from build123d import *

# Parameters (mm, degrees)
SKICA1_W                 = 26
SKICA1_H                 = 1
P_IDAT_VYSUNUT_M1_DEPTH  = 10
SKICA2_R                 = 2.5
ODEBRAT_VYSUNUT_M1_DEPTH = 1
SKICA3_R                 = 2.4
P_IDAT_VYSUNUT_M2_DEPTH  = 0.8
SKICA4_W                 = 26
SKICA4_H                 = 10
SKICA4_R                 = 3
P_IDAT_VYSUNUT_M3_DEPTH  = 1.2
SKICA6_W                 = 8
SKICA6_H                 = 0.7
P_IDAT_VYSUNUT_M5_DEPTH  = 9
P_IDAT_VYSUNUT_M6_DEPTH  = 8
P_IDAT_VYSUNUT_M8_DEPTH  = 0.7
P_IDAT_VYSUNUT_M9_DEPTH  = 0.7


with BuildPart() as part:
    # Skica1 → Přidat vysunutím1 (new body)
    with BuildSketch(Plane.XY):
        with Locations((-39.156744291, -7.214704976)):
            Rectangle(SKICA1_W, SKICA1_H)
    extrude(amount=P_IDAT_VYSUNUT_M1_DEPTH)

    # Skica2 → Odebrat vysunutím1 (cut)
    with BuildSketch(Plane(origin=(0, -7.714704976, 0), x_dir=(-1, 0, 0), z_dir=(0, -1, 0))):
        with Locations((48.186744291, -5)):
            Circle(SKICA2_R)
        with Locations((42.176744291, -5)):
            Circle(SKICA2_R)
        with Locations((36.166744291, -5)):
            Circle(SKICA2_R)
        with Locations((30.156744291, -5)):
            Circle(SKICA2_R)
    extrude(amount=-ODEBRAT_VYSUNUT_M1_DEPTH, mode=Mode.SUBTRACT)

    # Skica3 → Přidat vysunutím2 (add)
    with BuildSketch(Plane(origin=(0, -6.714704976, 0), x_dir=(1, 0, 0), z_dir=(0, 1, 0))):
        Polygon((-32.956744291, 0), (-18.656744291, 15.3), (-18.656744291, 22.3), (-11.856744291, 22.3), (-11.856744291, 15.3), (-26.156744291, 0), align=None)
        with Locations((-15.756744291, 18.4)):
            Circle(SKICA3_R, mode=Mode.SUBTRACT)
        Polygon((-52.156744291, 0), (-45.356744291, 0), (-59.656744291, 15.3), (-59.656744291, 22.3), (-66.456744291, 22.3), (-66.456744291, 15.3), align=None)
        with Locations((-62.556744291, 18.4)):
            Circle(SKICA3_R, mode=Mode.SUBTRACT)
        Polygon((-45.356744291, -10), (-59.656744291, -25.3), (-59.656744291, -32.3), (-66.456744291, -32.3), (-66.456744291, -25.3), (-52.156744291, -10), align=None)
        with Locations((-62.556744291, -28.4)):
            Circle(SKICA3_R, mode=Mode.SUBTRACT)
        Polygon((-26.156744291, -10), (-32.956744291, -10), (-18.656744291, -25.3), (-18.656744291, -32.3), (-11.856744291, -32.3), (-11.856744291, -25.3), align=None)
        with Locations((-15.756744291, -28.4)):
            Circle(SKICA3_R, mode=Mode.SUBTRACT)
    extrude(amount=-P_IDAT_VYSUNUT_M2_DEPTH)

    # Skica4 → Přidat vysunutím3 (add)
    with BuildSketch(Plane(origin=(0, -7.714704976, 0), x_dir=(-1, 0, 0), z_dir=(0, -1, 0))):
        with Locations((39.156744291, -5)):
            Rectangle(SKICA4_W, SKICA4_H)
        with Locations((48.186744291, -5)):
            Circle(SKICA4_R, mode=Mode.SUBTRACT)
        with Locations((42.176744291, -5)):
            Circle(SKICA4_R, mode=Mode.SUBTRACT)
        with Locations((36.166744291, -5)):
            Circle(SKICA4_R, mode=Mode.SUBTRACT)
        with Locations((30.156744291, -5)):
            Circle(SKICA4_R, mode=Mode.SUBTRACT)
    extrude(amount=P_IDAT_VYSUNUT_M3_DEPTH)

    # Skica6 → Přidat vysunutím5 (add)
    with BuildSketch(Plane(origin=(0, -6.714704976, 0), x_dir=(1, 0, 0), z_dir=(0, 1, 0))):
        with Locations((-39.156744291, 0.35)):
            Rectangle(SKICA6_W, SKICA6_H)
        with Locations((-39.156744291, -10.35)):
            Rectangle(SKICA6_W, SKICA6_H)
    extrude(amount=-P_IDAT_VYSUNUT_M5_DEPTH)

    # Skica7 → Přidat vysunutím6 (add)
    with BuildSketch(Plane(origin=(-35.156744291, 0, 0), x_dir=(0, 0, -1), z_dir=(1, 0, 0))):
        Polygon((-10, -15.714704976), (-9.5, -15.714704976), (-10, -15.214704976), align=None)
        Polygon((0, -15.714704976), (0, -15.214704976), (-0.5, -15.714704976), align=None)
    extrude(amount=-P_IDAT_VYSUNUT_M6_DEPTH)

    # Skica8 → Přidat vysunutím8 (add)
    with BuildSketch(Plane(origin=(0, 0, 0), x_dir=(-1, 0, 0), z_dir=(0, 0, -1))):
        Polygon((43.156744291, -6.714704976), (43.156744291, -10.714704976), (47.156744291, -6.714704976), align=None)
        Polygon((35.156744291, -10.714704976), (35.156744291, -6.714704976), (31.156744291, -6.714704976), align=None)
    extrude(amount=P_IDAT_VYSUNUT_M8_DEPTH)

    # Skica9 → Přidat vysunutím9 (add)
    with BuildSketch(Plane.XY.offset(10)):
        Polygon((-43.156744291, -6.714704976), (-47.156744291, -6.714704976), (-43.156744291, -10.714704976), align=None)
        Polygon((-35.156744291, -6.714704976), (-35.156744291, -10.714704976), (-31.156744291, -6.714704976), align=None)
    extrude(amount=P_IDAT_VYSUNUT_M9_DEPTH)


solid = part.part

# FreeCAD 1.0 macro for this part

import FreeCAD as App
import Part
import Sketcher
Q = App.Units.Quantity

doc = App.newDocument("Part")
body = doc.addObject("PartDesign::Body", "Body")

# Sketch on XY plane
sketch1 = doc.addObject("Sketcher::SketchObject", "Sketch")
body.addObject(sketch1)
sketch1.AttachmentSupport = (doc.XY_Plane, [""])
sketch1.MapMode = "FlatFace"
sketch1.addGeometry([
    Part.LineSegment(App.Vector(-52.2, -6.7, 0), App.Vector(-52.2, -7.7, 0)),
    Part.LineSegment(App.Vector(-52.2, -7.7, 0), App.Vector(-26.2, -7.7, 0)),
    Part.LineSegment(App.Vector(-26.2, -7.7, 0), App.Vector(-26.2, -6.7, 0)),
    Part.LineSegment(App.Vector(-26.2, -6.7, 0), App.Vector(-52.2, -6.7, 0)),
], False)
sketch1.addConstraint([
    Sketcher.Constraint("Coincident", 0, 2, 1, 1),
    Sketcher.Constraint("Coincident", 1, 2, 2, 1),
    Sketcher.Constraint("Coincident", 2, 2, 3, 1),
    Sketcher.Constraint("Coincident", 3, 2, 0, 1),
    Sketcher.Constraint("Vertical", 0),
    Sketcher.Constraint("Horizontal", 1),
    Sketcher.Constraint("Vertical", 2),
    Sketcher.Constraint("Horizontal", 3),
    Sketcher.Constraint("DistanceX", 1, 1, 1, 2, Q("26 mm")),
    Sketcher.Constraint("DistanceY", 0, 2, 0, 1, Q("1 mm")),
    Sketcher.Constraint("DistanceX", 0, 2, -1, 1, Q("52.156744 mm")),
    Sketcher.Constraint("DistanceY", 0, 2, -1, 1, Q("7.714705 mm")),
])
pad1 = doc.addObject("PartDesign::Pad", "Pad")
body.addObject(pad1)
pad1.Profile = sketch1
pad1.Length = 10

# Sketch on XZ plane
sketch2 = doc.addObject("Sketcher::SketchObject", "Sketch001")
body.addObject(sketch2)
sketch2.AttachmentSupport = (doc.XZ_Plane, [""])
sketch2.MapMode = "FlatFace"
sketch2.AttachmentOffset = App.Placement(App.Vector(0, 0, 7.714705), App.Rotation())
sketch2.addGeometry([
    Part.Circle(App.Vector(-48.2, 5, 0), App.Vector(0, 0, 1), 2.5),
    Part.Circle(App.Vector(-42.2, 5, 0), App.Vector(0, 0, 1), 2.5),
    Part.Circle(App.Vector(-36.2, 5, 0), App.Vector(0, 0, 1), 2.5),
    Part.Circle(App.Vector(-30.2, 5, 0), App.Vector(0, 0, 1), 2.5),
], False)
sketch2.addConstraint([
    Sketcher.Constraint("Equal", 0, 1),
    Sketcher.Constraint("Equal", 1, 2),
    Sketcher.Constraint("Equal", 2, 3),
    Sketcher.Constraint("Horizontal", 0, 3, 1, 3),
    Sketcher.Constraint("Horizontal", 1, 3, 2, 3),
    Sketcher.Constraint("Horizontal", 2, 3, 3, 3),
    Sketcher.Constraint("Diameter", 0, Q("5 mm")),
    Sketcher.Constraint("DistanceY", -1, 1, 0, 3, Q("5 mm")),
    Sketcher.Constraint("DistanceX", 0, 3, 1, 3, Q("6.01 mm")),
    Sketcher.Constraint("DistanceX", 1, 3, 2, 3, Q("6.01 mm")),
    Sketcher.Constraint("DistanceX", 2, 3, 3, 3, Q("6.01 mm")),
    Sketcher.Constraint("DistanceX", 0, 3, -1, 1, Q("48.186744 mm")),
])
pocket1 = doc.addObject("PartDesign::Pocket", "Pocket")
body.addObject(pocket1)
pocket1.Profile = sketch2
pocket1.Length = 1

# Sketch on XZ plane
sketch3 = doc.addObject("Sketcher::SketchObject", "Sketch002")
body.addObject(sketch3)
sketch3.AttachmentSupport = (doc.XZ_Plane, [""])
sketch3.MapMode = "FlatFace"
sketch3.AttachmentOffset = App.Placement(App.Vector(0, 0, 6.714705), App.Rotation())
sketch3.addGeometry([
    Part.LineSegment(App.Vector(-18.7, -15.3, 0), App.Vector(-33, 0, 0)),  # 0
    Part.LineSegment(App.Vector(-33, 0, 0), App.Vector(-26.2, 0, 0)),  # 1
    Part.LineSegment(App.Vector(-26.2, 0, 0), App.Vector(-11.9, -15.3, 0)),  # 2
    Part.LineSegment(App.Vector(-11.9, -15.3, 0), App.Vector(-11.9, -22.3, 0)),  # 3
    Part.LineSegment(App.Vector(-11.9, -22.3, 0), App.Vector(-18.7, -22.3, 0)),  # 4
    Part.LineSegment(App.Vector(-18.7, -22.3, 0), App.Vector(-18.7, -15.3, 0)),  # 5
    Part.Circle(App.Vector(-15.8, -18.4, 0), App.Vector(0, 0, 1), 2.4),  # 6
    Part.LineSegment(App.Vector(-52.2, 0, 0), App.Vector(-45.4, 0, 0)),  # 7
    Part.LineSegment(App.Vector(-45.4, 0, 0), App.Vector(-59.7, -15.3, 0)),  # 8
    Part.LineSegment(App.Vector(-59.7, -15.3, 0), App.Vector(-59.7, -22.3, 0)),  # 9
    Part.LineSegment(App.Vector(-59.7, -22.3, 0), App.Vector(-66.5, -22.3, 0)),  # 10
    Part.LineSegment(App.Vector(-66.5, -22.3, 0), App.Vector(-66.5, -15.3, 0)),  # 11
    Part.LineSegment(App.Vector(-66.5, -15.3, 0), App.Vector(-52.2, 0, 0)),  # 12
    Part.Circle(App.Vector(-62.6, -18.4, 0), App.Vector(0, 0, 1), 2.4),  # 13
    Part.LineSegment(App.Vector(-59.7, 25.3, 0), App.Vector(-45.4, 10, 0)),  # 14
    Part.LineSegment(App.Vector(-45.4, 10, 0), App.Vector(-52.2, 10, 0)),  # 15
    Part.LineSegment(App.Vector(-52.2, 10, 0), App.Vector(-66.5, 25.3, 0)),  # 16
    Part.LineSegment(App.Vector(-66.5, 25.3, 0), App.Vector(-66.5, 32.3, 0)),  # 17
    Part.LineSegment(App.Vector(-66.5, 32.3, 0), App.Vector(-59.7, 32.3, 0)),  # 18
    Part.LineSegment(App.Vector(-59.7, 32.3, 0), App.Vector(-59.7, 25.3, 0)),  # 19
    Part.Circle(App.Vector(-62.6, 28.4, 0), App.Vector(0, 0, 1), 2.4),  # 20
    Part.LineSegment(App.Vector(-26.2, 10, 0), App.Vector(-33, 10, 0)),  # 21
    Part.LineSegment(App.Vector(-33, 10, 0), App.Vector(-18.7, 25.3, 0)),  # 22
    Part.LineSegment(App.Vector(-18.7, 25.3, 0), App.Vector(-18.7, 32.3, 0)),  # 23
    Part.LineSegment(App.Vector(-18.7, 32.3, 0), App.Vector(-11.9, 32.3, 0)),  # 24
    Part.LineSegment(App.Vector(-11.9, 32.3, 0), App.Vector(-11.9, 25.3, 0)),  # 25
    Part.LineSegment(App.Vector(-11.9, 25.3, 0), App.Vector(-26.2, 10, 0)),  # 26
    Part.Circle(App.Vector(-15.8, 28.4, 0), App.Vector(0, 0, 1), 2.4),  # 27
], False)
sketch3.addConstraint([
    Sketcher.Constraint("Coincident", 0, 2, 1, 1),
    Sketcher.Constraint("Coincident", 1, 2, 2, 1),
    Sketcher.Constraint("Coincident", 2, 2, 3, 1),
    Sketcher.Constraint("Coincident", 3, 2, 4, 1),
    Sketcher.Constraint("Coincident", 4, 2, 5, 1),
    Sketcher.Constraint("Coincident", 5, 2, 0, 1),
    Sketcher.Constraint("Coincident", 7, 2, 8, 1),
    Sketcher.Constraint("Coincident", 8, 2, 9, 1),
    Sketcher.Constraint("Coincident", 9, 2, 10, 1),
    Sketcher.Constraint("Coincident", 10, 2, 11, 1),
    Sketcher.Constraint("Coincident", 11, 2, 12, 1),
    Sketcher.Constraint("Coincident", 12, 2, 7, 1),
    Sketcher.Constraint("Coincident", 14, 2, 15, 1),
    Sketcher.Constraint("Coincident", 15, 2, 16, 1),
    Sketcher.Constraint("Coincident", 16, 2, 17, 1),
    Sketcher.Constraint("Coincident", 17, 2, 18, 1),
    Sketcher.Constraint("Coincident", 18, 2, 19, 1),
    Sketcher.Constraint("Coincident", 19, 2, 14, 1),
    Sketcher.Constraint("Coincident", 21, 2, 22, 1),
    Sketcher.Constraint("Coincident", 22, 2, 23, 1),
    Sketcher.Constraint("Coincident", 23, 2, 24, 1),
    Sketcher.Constraint("Coincident", 24, 2, 25, 1),
    Sketcher.Constraint("Coincident", 25, 2, 26, 1),
    Sketcher.Constraint("Coincident", 26, 2, 21, 1),
    Sketcher.Constraint("Horizontal", 1),
    Sketcher.Constraint("Vertical", 3),
    Sketcher.Constraint("Horizontal", 4),
    Sketcher.Constraint("Vertical", 5),
    Sketcher.Constraint("Horizontal", 7),
    Sketcher.Constraint("Vertical", 9),
    Sketcher.Constraint("Horizontal", 10),
    Sketcher.Constraint("Vertical", 11),
    Sketcher.Constraint("Horizontal", 15),
    Sketcher.Constraint("Vertical", 17),
    Sketcher.Constraint("Horizontal", 18),
    Sketcher.Constraint("Vertical", 19),
    Sketcher.Constraint("Horizontal", 21),
    Sketcher.Constraint("Vertical", 23),
    Sketcher.Constraint("Horizontal", 24),
    Sketcher.Constraint("Vertical", 25),
    Sketcher.Constraint("Equal", 6, 13),
    Sketcher.Constraint("Equal", 13, 20),
    Sketcher.Constraint("Equal", 20, 27),
    Sketcher.Constraint("PointOnObject", 0, 2, -1),
    Sketcher.Constraint("PointOnObject", 7, 2, -1),
    Sketcher.Constraint("Parallel", 0, 2),
    Sketcher.Constraint("Parallel", 8, 12),
    Sketcher.Constraint("Parallel", 2, 14),
    Sketcher.Constraint("Parallel", 14, 16),
    Sketcher.Constraint("Parallel", 12, 22),
    Sketcher.Constraint("Parallel", 22, 26),
    Sketcher.Constraint("Horizontal", 6, 3, 13, 3),
    Sketcher.Constraint("Horizontal", 20, 3, 27, 3),
    Sketcher.Constraint("Horizontal", 2, 2, 5, 2),
    Sketcher.Constraint("Horizontal", 5, 2, 8, 2),
    Sketcher.Constraint("Horizontal", 4, 2, 9, 2),
    Sketcher.Constraint("Horizontal", 8, 2, 11, 2),
    Sketcher.Constraint("Horizontal", 16, 2, 19, 2),
    Sketcher.Constraint("Horizontal", 15, 2, 21, 2),
    Sketcher.Constraint("Horizontal", 19, 2, 22, 2),
    Sketcher.Constraint("Horizontal", 18, 2, 23, 2),
    Sketcher.Constraint("Horizontal", 22, 2, 25, 2),
    Sketcher.Constraint("Vertical", 13, 3, 20, 3),
    Sketcher.Constraint("Vertical", 6, 3, 27, 3),
    Sketcher.Constraint("Vertical", 7, 2, 14, 2),
    Sketcher.Constraint("Vertical", 12, 2, 15, 2),
    Sketcher.Constraint("Vertical", 11, 2, 16, 2),
    Sketcher.Constraint("Vertical", 0, 2, 21, 2),
    Sketcher.Constraint("Vertical", 5, 2, 22, 2),
    Sketcher.Constraint("Vertical", 3, 2, 24, 2),
    Sketcher.Constraint("Equal", 4, 7),
    Sketcher.Constraint("Equal", 11, 17),
    Sketcher.Constraint("Diameter", 6, Q("4.8 mm")),
    Sketcher.Constraint("DistanceY", 3, 2, 3, 1, Q("7 mm")),
    Sketcher.Constraint("DistanceX", 1, 1, 1, 2, Q("6.8 mm")),
    Sketcher.Constraint("DistanceY", -1, 1, 14, 2, Q("10 mm")),
    Sketcher.Constraint("DistanceX", 8, 2, 5, 2, Q("41 mm")),
    Sketcher.Constraint("DistanceY", 6, 3, -1, 1, Q("18.4 mm")),
    Sketcher.Constraint("DistanceY", -1, 1, 20, 3, Q("28.4 mm")),
    Sketcher.Constraint("DistanceY", 2, 2, -1, 1, Q("15.3 mm")),
    Sketcher.Constraint("DistanceX", 13, 3, 6, 3, Q("46.8 mm")),
    Sketcher.Constraint("DistanceX", 0, 2, 6, 3, Q("17.2 mm")),
    Sketcher.Constraint("DistanceX", 6, 3, 2, 2, Q("3.9 mm")),
    Sketcher.Constraint("DistanceX", 6, 3, -1, 1, Q("15.756744 mm")),
])
pad2 = doc.addObject("PartDesign::Pad", "Pad001")
body.addObject(pad2)
pad2.Profile = sketch3
pad2.Length = 0.8

# Sketch on XZ plane
sketch4 = doc.addObject("Sketcher::SketchObject", "Sketch003")
body.addObject(sketch4)
sketch4.AttachmentSupport = (doc.XZ_Plane, [""])
sketch4.MapMode = "FlatFace"
sketch4.AttachmentOffset = App.Placement(App.Vector(0, 0, 7.714705), App.Rotation())
sketch4.addGeometry([
    Part.LineSegment(App.Vector(-26.2, 0, 0), App.Vector(-26.2, 10, 0)),  # 0
    Part.LineSegment(App.Vector(-26.2, 10, 0), App.Vector(-52.2, 10, 0)),  # 1
    Part.LineSegment(App.Vector(-52.2, 10, 0), App.Vector(-52.2, 0, 0)),  # 2
    Part.LineSegment(App.Vector(-52.2, 0, 0), App.Vector(-26.2, 0, 0)),  # 3
    Part.Circle(App.Vector(-30.2, 5, 0), App.Vector(0, 0, 1), 3),  # 4
    Part.Circle(App.Vector(-36.2, 5, 0), App.Vector(0, 0, 1), 3),  # 5
    Part.Circle(App.Vector(-42.2, 5, 0), App.Vector(0, 0, 1), 3),  # 6
    Part.Circle(App.Vector(-48.2, 5, 0), App.Vector(0, 0, 1), 3),  # 7
], False)
sketch4.addConstraint([
    Sketcher.Constraint("Coincident", 0, 2, 1, 1),
    Sketcher.Constraint("Coincident", 1, 2, 2, 1),
    Sketcher.Constraint("Coincident", 2, 2, 3, 1),
    Sketcher.Constraint("Coincident", 3, 2, 0, 1),
    Sketcher.Constraint("Vertical", 0),
    Sketcher.Constraint("Horizontal", 1),
    Sketcher.Constraint("Vertical", 2),
    Sketcher.Constraint("Horizontal", 3),
    Sketcher.Constraint("Equal", 4, 5),
    Sketcher.Constraint("Equal", 5, 6),
    Sketcher.Constraint("Equal", 6, 7),
    Sketcher.Constraint("PointOnObject", 2, 2, -1),
    Sketcher.Constraint("Horizontal", 4, 3, 5, 3),
    Sketcher.Constraint("Horizontal", 5, 3, 6, 3),
    Sketcher.Constraint("Horizontal", 6, 3, 7, 3),
    Sketcher.Constraint("Diameter", 4, Q("6 mm")),
    Sketcher.Constraint("DistanceX", 1, 2, 1, 1, Q("26 mm")),
    Sketcher.Constraint("DistanceY", 0, 1, 0, 2, Q("10 mm")),
    Sketcher.Constraint("DistanceY", -1, 1, 4, 3, Q("5 mm")),
    Sketcher.Constraint("DistanceX", 4, 3, 0, 2, Q("4 mm")),
    Sketcher.Constraint("DistanceX", 5, 3, 4, 3, Q("6.01 mm")),
    Sketcher.Constraint("DistanceX", 6, 3, 5, 3, Q("6.01 mm")),
    Sketcher.Constraint("DistanceX", 7, 3, 6, 3, Q("6.01 mm")),
    Sketcher.Constraint("DistanceX", 4, 3, -1, 1, Q("30.156744 mm")),
])
pad3 = doc.addObject("PartDesign::Pad", "Pad002")
body.addObject(pad3)
pad3.Profile = sketch4
pad3.Length = 1.2

# Sketch on XZ plane
sketch5 = doc.addObject("Sketcher::SketchObject", "Sketch004")
body.addObject(sketch5)
sketch5.AttachmentSupport = (doc.XZ_Plane, [""])
sketch5.MapMode = "FlatFace"
sketch5.AttachmentOffset = App.Placement(App.Vector(0, 0, 6.714705), App.Rotation())
sketch5.addGeometry([
    Part.LineSegment(App.Vector(-43.2, -0.7, 0), App.Vector(-43.2, 0, 0)),  # 0
    Part.LineSegment(App.Vector(-43.2, 0, 0), App.Vector(-35.2, 0, 0)),  # 1
    Part.LineSegment(App.Vector(-35.2, 0, 0), App.Vector(-35.2, -0.7, 0)),  # 2
    Part.LineSegment(App.Vector(-35.2, -0.7, 0), App.Vector(-43.2, -0.7, 0)),  # 3
    Part.LineSegment(App.Vector(-43.2, 10, 0), App.Vector(-43.2, 10.7, 0)),  # 4
    Part.LineSegment(App.Vector(-43.2, 10.7, 0), App.Vector(-35.2, 10.7, 0)),  # 5
    Part.LineSegment(App.Vector(-35.2, 10.7, 0), App.Vector(-35.2, 10, 0)),  # 6
    Part.LineSegment(App.Vector(-35.2, 10, 0), App.Vector(-43.2, 10, 0)),  # 7
], False)
sketch5.addConstraint([
    Sketcher.Constraint("Coincident", 0, 2, 1, 1),
    Sketcher.Constraint("Coincident", 1, 2, 2, 1),
    Sketcher.Constraint("Coincident", 2, 2, 3, 1),
    Sketcher.Constraint("Coincident", 3, 2, 0, 1),
    Sketcher.Constraint("Coincident", 4, 2, 5, 1),
    Sketcher.Constraint("Coincident", 5, 2, 6, 1),
    Sketcher.Constraint("Coincident", 6, 2, 7, 1),
    Sketcher.Constraint("Coincident", 7, 2, 4, 1),
    Sketcher.Constraint("Vertical", 0),
    Sketcher.Constraint("Horizontal", 1),
    Sketcher.Constraint("Vertical", 2),
    Sketcher.Constraint("Horizontal", 3),
    Sketcher.Constraint("Vertical", 4),
    Sketcher.Constraint("Horizontal", 5),
    Sketcher.Constraint("Vertical", 6),
    Sketcher.Constraint("Horizontal", 7),
    Sketcher.Constraint("PointOnObject", 0, 2, -1),
    Sketcher.Constraint("Vertical", 3, 2, 4, 2),
    Sketcher.Constraint("Vertical", 2, 2, 5, 2),
    Sketcher.Constraint("Equal", 2, 4),
    Sketcher.Constraint("DistanceX", 1, 1, 1, 2, Q("8 mm")),
    Sketcher.Constraint("DistanceY", 0, 1, 0, 2, Q("0.7 mm")),
    Sketcher.Constraint("DistanceY", -1, 1, 6, 2, Q("10 mm")),
    Sketcher.Constraint("DistanceX", 0, 2, -1, 1, Q("43.156744 mm")),
])
pad4 = doc.addObject("PartDesign::Pad", "Pad003")
body.addObject(pad4)
pad4.Profile = sketch5
pad4.Length = 9

# Sketch on YZ plane
sketch6 = doc.addObject("Sketcher::SketchObject", "Sketch005")
body.addObject(sketch6)
sketch6.AttachmentSupport = (doc.YZ_Plane, [""])
sketch6.MapMode = "FlatFace"
sketch6.AttachmentOffset = App.Placement(App.Vector(0, 0, -35.156744), App.Rotation())
sketch6.addGeometry([
    Part.LineSegment(App.Vector(-15.7, 10, 0), App.Vector(-15.7, 9.5, 0)),  # 0
    Part.LineSegment(App.Vector(-15.7, 9.5, 0), App.Vector(-15.2, 10, 0)),  # 1
    Part.LineSegment(App.Vector(-15.2, 10, 0), App.Vector(-15.7, 10, 0)),  # 2
    Part.LineSegment(App.Vector(-15.7, 0, 0), App.Vector(-15.2, 0, 0)),  # 3
    Part.LineSegment(App.Vector(-15.2, 0, 0), App.Vector(-15.7, 0.5, 0)),  # 4
    Part.LineSegment(App.Vector(-15.7, 0.5, 0), App.Vector(-15.7, 0, 0)),  # 5
], False)
sketch6.addConstraint([
    Sketcher.Constraint("Coincident", 0, 2, 1, 1),
    Sketcher.Constraint("Coincident", 1, 2, 2, 1),
    Sketcher.Constraint("Coincident", 2, 2, 0, 1),
    Sketcher.Constraint("Coincident", 3, 2, 4, 1),
    Sketcher.Constraint("Coincident", 4, 2, 5, 1),
    Sketcher.Constraint("Coincident", 5, 2, 3, 1),
    Sketcher.Constraint("Vertical", 0),
    Sketcher.Constraint("Horizontal", 2),
    Sketcher.Constraint("Horizontal", 3),
    Sketcher.Constraint("Vertical", 5),
    Sketcher.Constraint("PointOnObject", 3, 2, -1),
    Sketcher.Constraint("Perpendicular", 1, 4),
    Sketcher.Constraint("Vertical", 1, 2, 3, 2),
    Sketcher.Constraint("Vertical", 2, 2, 4, 2),
    Sketcher.Constraint("Equal", 3, 0),
    Sketcher.Constraint("DistanceX", 2, 2, 2, 1, Q("0.5 mm")),
    Sketcher.Constraint("DistanceY", -1, 1, 1, 2, Q("10 mm")),
    Sketcher.Constraint("DistanceX", 0, 2, -1, 1, Q("15.714705 mm")),
])
pad5 = doc.addObject("PartDesign::Pad", "Pad004")
body.addObject(pad5)
pad5.Profile = sketch6
pad5.Length = 8
pad5.Reversed = True

# Sketch on XY plane
sketch7 = doc.addObject("Sketcher::SketchObject", "Sketch006")
body.addObject(sketch7)
sketch7.AttachmentSupport = (doc.XY_Plane, [""])
sketch7.MapMode = "FlatFace"
sketch7.addGeometry([
    Part.LineSegment(App.Vector(-43.2, -6.7, 0), App.Vector(-43.2, -10.7, 0)),  # 0
    Part.LineSegment(App.Vector(-43.2, -10.7, 0), App.Vector(-47.2, -6.7, 0)),  # 1
    Part.LineSegment(App.Vector(-47.2, -6.7, 0), App.Vector(-43.2, -6.7, 0)),  # 2
    Part.LineSegment(App.Vector(-35.2, -10.7, 0), App.Vector(-35.2, -6.7, 0)),  # 3
    Part.LineSegment(App.Vector(-35.2, -6.7, 0), App.Vector(-31.2, -6.7, 0)),  # 4
    Part.LineSegment(App.Vector(-31.2, -6.7, 0), App.Vector(-35.2, -10.7, 0)),  # 5
], False)
sketch7.addConstraint([
    Sketcher.Constraint("Coincident", 0, 2, 1, 1),
    Sketcher.Constraint("Coincident", 1, 2, 2, 1),
    Sketcher.Constraint("Coincident", 2, 2, 0, 1),
    Sketcher.Constraint("Coincident", 3, 2, 4, 1),
    Sketcher.Constraint("Coincident", 4, 2, 5, 1),
    Sketcher.Constraint("Coincident", 5, 2, 3, 1),
    Sketcher.Constraint("Vertical", 0),
    Sketcher.Constraint("Horizontal", 2),
    Sketcher.Constraint("Vertical", 3),
    Sketcher.Constraint("Horizontal", 4),
    Sketcher.Constraint("Perpendicular", 1, 5),
    Sketcher.Constraint("Horizontal", 2, 2, 3, 2),
    Sketcher.Constraint("Horizontal", 0, 2, 5, 2),
    Sketcher.Constraint("Equal", 2, 4),
    Sketcher.Constraint("DistanceX", 2, 1, 2, 2, Q("4 mm")),
    Sketcher.Constraint("DistanceX", 2, 2, 3, 2, Q("8 mm")),
    Sketcher.Constraint("DistanceX", 0, 2, -1, 1, Q("43.156744 mm")),
    Sketcher.Constraint("DistanceY", 0, 2, -1, 1, Q("10.714705 mm")),
])
pad6 = doc.addObject("PartDesign::Pad", "Pad005")
body.addObject(pad6)
pad6.Profile = sketch7
pad6.Length = 0.7
pad6.Reversed = True

# Sketch on XY plane
sketch8 = doc.addObject("Sketcher::SketchObject", "Sketch007")
body.addObject(sketch8)
sketch8.AttachmentSupport = (doc.XY_Plane, [""])
sketch8.MapMode = "FlatFace"
sketch8.AttachmentOffset = App.Placement(App.Vector(0, 0, 10), App.Rotation())
sketch8.addGeometry([
    Part.LineSegment(App.Vector(-43.2, -6.7, 0), App.Vector(-47.2, -6.7, 0)),  # 0
    Part.LineSegment(App.Vector(-47.2, -6.7, 0), App.Vector(-43.2, -10.7, 0)),  # 1
    Part.LineSegment(App.Vector(-43.2, -10.7, 0), App.Vector(-43.2, -6.7, 0)),  # 2
    Part.LineSegment(App.Vector(-35.2, -6.7, 0), App.Vector(-35.2, -10.7, 0)),  # 3
    Part.LineSegment(App.Vector(-35.2, -10.7, 0), App.Vector(-31.2, -6.7, 0)),  # 4
    Part.LineSegment(App.Vector(-31.2, -6.7, 0), App.Vector(-35.2, -6.7, 0)),  # 5
], False)
sketch8.addConstraint([
    Sketcher.Constraint("Coincident", 0, 2, 1, 1),
    Sketcher.Constraint("Coincident", 1, 2, 2, 1),
    Sketcher.Constraint("Coincident", 2, 2, 0, 1),
    Sketcher.Constraint("Coincident", 3, 2, 4, 1),
    Sketcher.Constraint("Coincident", 4, 2, 5, 1),
    Sketcher.Constraint("Coincident", 5, 2, 3, 1),
    Sketcher.Constraint("Horizontal", 0),
    Sketcher.Constraint("Vertical", 2),
    Sketcher.Constraint("Vertical", 3),
    Sketcher.Constraint("Horizontal", 5),
    Sketcher.Constraint("Perpendicular", 1, 4),
    Sketcher.Constraint("Horizontal", 1, 2, 3, 2),
    Sketcher.Constraint("Horizontal", 2, 2, 4, 2),
    Sketcher.Constraint("Equal", 0, 5),
    Sketcher.Constraint("DistanceX", 0, 2, 0, 1, Q("4 mm")),
    Sketcher.Constraint("DistanceX", 1, 2, 3, 2, Q("8 mm")),
    Sketcher.Constraint("DistanceX", 0, 2, -1, 1, Q("47.156744 mm")),
    Sketcher.Constraint("DistanceY", 0, 2, -1, 1, Q("6.714705 mm")),
])
pad7 = doc.addObject("PartDesign::Pad", "Pad006")
body.addObject(pad7)
pad7.Profile = sketch8
pad7.Length = 0.7

doc.recompute()
